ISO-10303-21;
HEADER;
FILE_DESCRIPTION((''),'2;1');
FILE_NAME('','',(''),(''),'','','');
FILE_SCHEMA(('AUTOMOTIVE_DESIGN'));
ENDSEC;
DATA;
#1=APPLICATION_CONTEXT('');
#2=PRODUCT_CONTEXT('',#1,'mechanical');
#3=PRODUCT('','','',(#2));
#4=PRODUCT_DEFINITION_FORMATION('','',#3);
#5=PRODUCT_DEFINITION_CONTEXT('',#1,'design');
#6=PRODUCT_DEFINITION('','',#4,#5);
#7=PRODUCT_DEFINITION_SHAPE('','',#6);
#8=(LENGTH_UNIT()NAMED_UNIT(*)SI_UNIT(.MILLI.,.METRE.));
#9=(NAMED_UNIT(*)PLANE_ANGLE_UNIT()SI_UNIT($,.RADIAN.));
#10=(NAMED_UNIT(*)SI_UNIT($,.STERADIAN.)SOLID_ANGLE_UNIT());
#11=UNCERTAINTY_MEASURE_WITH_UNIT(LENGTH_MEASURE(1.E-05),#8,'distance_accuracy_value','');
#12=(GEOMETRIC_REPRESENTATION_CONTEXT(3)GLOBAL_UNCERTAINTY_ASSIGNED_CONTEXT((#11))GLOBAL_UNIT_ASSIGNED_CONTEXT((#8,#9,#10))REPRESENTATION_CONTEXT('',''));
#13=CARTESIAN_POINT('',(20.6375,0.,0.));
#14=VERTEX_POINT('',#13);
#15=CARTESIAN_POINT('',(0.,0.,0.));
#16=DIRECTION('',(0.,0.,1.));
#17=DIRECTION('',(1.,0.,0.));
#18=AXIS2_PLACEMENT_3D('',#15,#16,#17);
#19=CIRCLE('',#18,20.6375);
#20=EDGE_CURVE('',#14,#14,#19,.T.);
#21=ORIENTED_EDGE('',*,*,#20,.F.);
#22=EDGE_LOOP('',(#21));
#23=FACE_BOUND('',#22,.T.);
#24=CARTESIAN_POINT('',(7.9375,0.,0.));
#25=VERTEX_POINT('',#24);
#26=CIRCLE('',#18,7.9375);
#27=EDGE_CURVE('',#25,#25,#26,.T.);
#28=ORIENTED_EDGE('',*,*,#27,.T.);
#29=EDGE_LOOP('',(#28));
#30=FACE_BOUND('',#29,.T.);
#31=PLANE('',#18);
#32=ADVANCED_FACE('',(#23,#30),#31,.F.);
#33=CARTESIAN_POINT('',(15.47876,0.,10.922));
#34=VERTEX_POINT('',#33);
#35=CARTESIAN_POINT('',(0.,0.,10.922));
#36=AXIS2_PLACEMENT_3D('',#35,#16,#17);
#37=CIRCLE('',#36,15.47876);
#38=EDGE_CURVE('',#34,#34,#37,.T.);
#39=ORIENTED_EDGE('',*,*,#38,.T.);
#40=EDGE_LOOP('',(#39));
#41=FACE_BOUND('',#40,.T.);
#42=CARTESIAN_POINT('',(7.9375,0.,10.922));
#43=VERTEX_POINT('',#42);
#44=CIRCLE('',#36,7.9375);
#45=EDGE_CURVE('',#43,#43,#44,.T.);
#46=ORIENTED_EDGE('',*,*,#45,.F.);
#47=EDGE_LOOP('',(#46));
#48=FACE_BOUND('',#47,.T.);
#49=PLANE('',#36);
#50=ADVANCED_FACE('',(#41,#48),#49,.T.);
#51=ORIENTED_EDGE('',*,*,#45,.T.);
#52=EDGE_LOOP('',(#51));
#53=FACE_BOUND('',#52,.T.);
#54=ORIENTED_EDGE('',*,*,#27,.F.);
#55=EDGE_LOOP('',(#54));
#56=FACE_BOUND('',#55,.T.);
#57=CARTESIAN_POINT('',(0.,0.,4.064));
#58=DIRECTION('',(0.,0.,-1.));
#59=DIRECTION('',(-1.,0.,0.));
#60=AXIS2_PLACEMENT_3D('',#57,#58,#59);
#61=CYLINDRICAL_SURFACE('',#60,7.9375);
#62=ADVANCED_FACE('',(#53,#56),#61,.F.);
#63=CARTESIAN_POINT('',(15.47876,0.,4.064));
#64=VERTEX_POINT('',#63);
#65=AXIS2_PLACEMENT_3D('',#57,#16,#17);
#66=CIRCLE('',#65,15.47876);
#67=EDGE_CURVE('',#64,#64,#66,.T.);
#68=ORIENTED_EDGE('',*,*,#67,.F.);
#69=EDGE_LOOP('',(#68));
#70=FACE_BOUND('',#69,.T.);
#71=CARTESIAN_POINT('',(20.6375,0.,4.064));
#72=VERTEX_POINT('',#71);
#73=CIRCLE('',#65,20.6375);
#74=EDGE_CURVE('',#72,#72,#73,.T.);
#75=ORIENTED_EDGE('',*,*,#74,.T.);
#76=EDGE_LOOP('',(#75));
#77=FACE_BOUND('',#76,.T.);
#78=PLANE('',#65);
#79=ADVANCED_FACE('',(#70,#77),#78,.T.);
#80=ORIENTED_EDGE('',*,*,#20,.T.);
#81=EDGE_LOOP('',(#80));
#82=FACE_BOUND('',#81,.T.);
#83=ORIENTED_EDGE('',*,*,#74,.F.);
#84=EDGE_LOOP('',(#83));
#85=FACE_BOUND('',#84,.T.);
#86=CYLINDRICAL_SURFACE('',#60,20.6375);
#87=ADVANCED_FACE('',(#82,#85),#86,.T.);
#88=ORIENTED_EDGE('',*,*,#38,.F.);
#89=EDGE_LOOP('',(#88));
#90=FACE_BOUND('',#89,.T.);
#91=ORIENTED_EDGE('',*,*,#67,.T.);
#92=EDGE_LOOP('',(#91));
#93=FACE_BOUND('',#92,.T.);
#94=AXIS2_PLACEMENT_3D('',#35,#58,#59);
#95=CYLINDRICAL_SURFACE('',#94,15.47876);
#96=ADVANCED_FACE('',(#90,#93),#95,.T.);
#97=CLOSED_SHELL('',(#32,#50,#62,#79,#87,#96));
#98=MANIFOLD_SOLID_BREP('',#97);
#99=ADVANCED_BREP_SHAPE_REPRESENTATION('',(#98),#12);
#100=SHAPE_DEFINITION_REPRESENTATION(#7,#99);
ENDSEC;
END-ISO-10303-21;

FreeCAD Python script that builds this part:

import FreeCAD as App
import Part
import Sketcher

V = App.Vector
Q = App.Units.Quantity

doc = App.newDocument("Part")
body = doc.addObject("PartDesign::Body", "Body")

# Sketch on XY plane
sketch1 = body.newObject("Sketcher::SketchObject", "Sketch")
sketch1.AttachmentSupport = (doc.getObject("XY_Plane"), [""])
sketch1.MapMode = "FlatFace"
sketch1.addGeometry(Part.Circle(V(0, 0, 0), V(0, 0, 1), 21), False)
sketch1.addGeometry(Part.Circle(V(0, 0, 0), V(0, 0, 1), 8), False)
sketch1.addConstraint(Sketcher.Constraint("Coincident", 0, 3, -1, 1))
sketch1.addConstraint(Sketcher.Constraint("Coincident", 1, 3, -1, 1))
sketch1.addConstraint(Sketcher.Constraint("Diameter", 0, Q("1.625 in")))
sketch1.addConstraint(Sketcher.Constraint("Diameter", 1, Q("0.625 in")))
pad1 = body.newObject("PartDesign::Pad", "Pad")
pad1.Profile = sketch1
pad1.Length = Q("0.16 in")

# Sketch on XY plane
sketch2 = body.newObject("Sketcher::SketchObject", "Sketch001")
sketch2.AttachmentSupport = (doc.getObject("XY_Plane"), [""])
sketch2.MapMode = "FlatFace"
sketch2.AttachmentOffset = App.Placement(V(0, 0, 0.16 * 25.4), App.Rotation())
sketch2.addGeometry(Part.Circle(V(0, 0, 0), V(0, 0, 1), 15), False)
sketch2.addGeometry(Part.Circle(V(0, 0, 0), V(0, 0, 1), 8), False)
sketch2.addConstraint(Sketcher.Constraint("Coincident", 0, 3, -1, 1))
sketch2.addConstraint(Sketcher.Constraint("Coincident", 1, 3, -1, 1))
sketch2.addConstraint(Sketcher.Constraint("Diameter", 1, Q("0.625 in")))
sketch2.addConstraint(Sketcher.Constraint("Diameter", 0, Q("1.2188 in")))
pad2 = body.newObject("PartDesign::Pad", "Pad001")
pad2.Profile = sketch2
pad2.Length = Q("0.27 in")

doc.recompute()
